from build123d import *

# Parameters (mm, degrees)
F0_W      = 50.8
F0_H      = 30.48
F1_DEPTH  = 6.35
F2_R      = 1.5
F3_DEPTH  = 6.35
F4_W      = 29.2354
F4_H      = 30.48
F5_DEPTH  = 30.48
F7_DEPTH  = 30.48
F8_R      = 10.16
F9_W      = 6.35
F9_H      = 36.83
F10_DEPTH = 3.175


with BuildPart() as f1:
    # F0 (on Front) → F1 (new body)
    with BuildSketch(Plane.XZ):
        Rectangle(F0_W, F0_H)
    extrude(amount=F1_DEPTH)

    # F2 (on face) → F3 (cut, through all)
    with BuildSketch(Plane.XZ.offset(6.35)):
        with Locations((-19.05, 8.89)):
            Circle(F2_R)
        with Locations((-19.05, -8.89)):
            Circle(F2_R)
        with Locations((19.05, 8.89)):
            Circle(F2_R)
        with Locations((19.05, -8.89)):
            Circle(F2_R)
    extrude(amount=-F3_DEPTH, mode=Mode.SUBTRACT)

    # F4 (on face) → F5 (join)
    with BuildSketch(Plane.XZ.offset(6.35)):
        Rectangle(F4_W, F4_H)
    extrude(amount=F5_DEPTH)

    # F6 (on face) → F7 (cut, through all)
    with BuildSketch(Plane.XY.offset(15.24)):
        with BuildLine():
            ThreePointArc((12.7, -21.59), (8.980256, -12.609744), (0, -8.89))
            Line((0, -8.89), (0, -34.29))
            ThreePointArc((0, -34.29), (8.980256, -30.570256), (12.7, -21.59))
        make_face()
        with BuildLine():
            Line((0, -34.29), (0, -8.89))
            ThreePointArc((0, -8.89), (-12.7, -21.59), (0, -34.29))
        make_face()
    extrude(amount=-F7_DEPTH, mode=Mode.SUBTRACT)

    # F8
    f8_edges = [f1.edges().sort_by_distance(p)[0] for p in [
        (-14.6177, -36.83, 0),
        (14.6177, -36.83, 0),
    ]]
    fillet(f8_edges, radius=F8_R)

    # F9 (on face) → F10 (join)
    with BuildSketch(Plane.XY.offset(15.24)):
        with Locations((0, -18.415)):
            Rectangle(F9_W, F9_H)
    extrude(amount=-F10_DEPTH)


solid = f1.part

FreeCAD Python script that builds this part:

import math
import FreeCAD as App
import Part
import Sketcher

V = App.Vector
Q = App.Units.Quantity


def edges_at(feature, points):
    """Names of the edges that pass closest to the given points."""
    edges = feature.Shape.Edges
    near = lambda p: min(range(len(edges)), key=lambda i: edges[i].distToShape(Part.Vertex(*p))[0])
    return sorted({f"Edge{near(p) + 1}" for p in points})

doc = App.newDocument("Part")
body = doc.addObject("PartDesign::Body", "Body")

# Sketch on XZ plane
sketch1 = doc.addObject("Sketcher::SketchObject", "Sketch")
body.addObject(sketch1)
sketch1.AttachmentSupport = (doc.XZ_Plane, [""])
sketch1.MapMode = "FlatFace"
sketch1.addGeometry([
    Part.LineSegment(V(-25.4, 15.24, 0), V(-25.4, -15.24, 0)),
    Part.LineSegment(V(-25.4, -15.24, 0), V(25.4, -15.24, 0)),
    Part.LineSegment(V(25.4, -15.24, 0), V(25.4, 15.24, 0)),
    Part.LineSegment(V(25.4, 15.24, 0), V(-25.4, 15.24, 0)),
], False)
sketch1.addConstraint([
    Sketcher.Constraint("Coincident", 0, 2, 1, 1),
    Sketcher.Constraint("Coincident", 1, 2, 2, 1),
    Sketcher.Constraint("Coincident", 2, 2, 3, 1),
    Sketcher.Constraint("Coincident", 3, 2, 0, 1),
    Sketcher.Constraint("Vertical", 0),
    Sketcher.Constraint("Horizontal", 1),
    Sketcher.Constraint("Vertical", 2),
    Sketcher.Constraint("Horizontal", 3),
    Sketcher.Constraint("Symmetric", 0, 2, 2, 2, -1, 1),
    Sketcher.Constraint("DistanceX", 1, 1, 1, 2, Q("2 in")),
    Sketcher.Constraint("DistanceY", 0, 2, 0, 1, Q("1.2 in")),
])
pad1 = doc.addObject("PartDesign::Pad", "Pad")
body.addObject(pad1)
pad1.Profile = sketch1
pad1.Length = Q("0.25 in")

# Sketch on XZ plane
sketch2 = doc.addObject("Sketcher::SketchObject", "Sketch001")
body.addObject(sketch2)
sketch2.AttachmentSupport = (doc.XZ_Plane, [""])
sketch2.MapMode = "FlatFace"
sketch2.AttachmentOffset = App.Placement(V(0, 0, 0.25 * 25.4), App.Rotation())
sketch2.addGeometry([
    Part.Circle(V(-19.05, 8.89, 0), V(0, 0, 1), 1.5),
    Part.Circle(V(-19.05, -8.89, 0), V(0, 0, 1), 1.5),
    Part.Circle(V(19.05, 8.89, 0), V(0, 0, 1), 1.5),
    Part.Circle(V(19.05, -8.89, 0), V(0, 0, 1), 1.5),
], False)
sketch2.addConstraint([
    Sketcher.Constraint("Equal", 0, 1),
    Sketcher.Constraint("Equal", 1, 2),
    Sketcher.Constraint("Equal", 2, 3),
    Sketcher.Constraint("Symmetric", 1, 3, 2, 3, -1, 1),
    Sketcher.Constraint("Symmetric", 0, 3, 3, 3, -1, 1),
    Sketcher.Constraint("Symmetric", 0, 3, 2, 3, -2),
    Sketcher.Constraint("DistanceY", 1, 3, 0, 3, Q("0.7 in")),
    Sketcher.Constraint("DistanceX", 0, 3, 2, 3, Q("1.5 in")),
    Sketcher.Constraint("Diameter", 0, 3.0),
])
pocket1 = doc.addObject("PartDesign::Pocket", "Pocket")
body.addObject(pocket1)
pocket1.Profile = sketch2
pocket1.Type = "ThroughAll"

# Sketch on XZ plane
sketch3 = doc.addObject("Sketcher::SketchObject", "Sketch002")
body.addObject(sketch3)
sketch3.AttachmentSupport = (doc.XZ_Plane, [""])
sketch3.MapMode = "FlatFace"
sketch3.AttachmentOffset = App.Placement(V(0, 0, 0.25 * 25.4), App.Rotation())
sketch3.addGeometry([
    Part.LineSegment(V(-14.6177, 15.24, 0), V(-14.6177, -15.24, 0)),
    Part.LineSegment(V(-14.6177, -15.24, 0), V(14.6177, -15.24, 0)),
    Part.LineSegment(V(14.6177, -15.24, 0), V(14.6177, 15.24, 0)),
    Part.LineSegment(V(14.6177, 15.24, 0), V(-14.6177, 15.24, 0)),
], False)
sketch3.addConstraint([
    Sketcher.Constraint("Coincident", 0, 2, 1, 1),
    Sketcher.Constraint("Coincident", 1, 2, 2, 1),
    Sketcher.Constraint("Coincident", 2, 2, 3, 1),
    Sketcher.Constraint("Coincident", 3, 2, 0, 1),
    Sketcher.Constraint("Vertical", 0),
    Sketcher.Constraint("Horizontal", 1),
    Sketcher.Constraint("Vertical", 2),
    Sketcher.Constraint("Horizontal", 3),
    Sketcher.Constraint("Symmetric", 0, 2, 2, 2, -1, 1),
    Sketcher.Constraint("DistanceY", 0, 2, 0, 1, Q("1.2 in")),
    Sketcher.Constraint("DistanceX", 1, 1, 1, 2, Q("1.151 in")),
])
pad2 = doc.addObject("PartDesign::Pad", "Pad001")
body.addObject(pad2)
pad2.Profile = sketch3
pad2.Length = Q("1.2 in")

# Sketch on XY plane
sketch4 = doc.addObject("Sketcher::SketchObject", "Sketch003")
body.addObject(sketch4)
sketch4.AttachmentSupport = (doc.XY_Plane, [""])
sketch4.MapMode = "FlatFace"
sketch4.AttachmentOffset = App.Placement(V(0, 0, 0.6 * 25.4), App.Rotation())
sketch4.addGeometry([
    Part.ArcOfCircle(Part.Circle(V(0, -21.59, 0), V(0, 0, 1), 12.7), math.radians(0.000002), math.radians(89.999998)),
    Part.ArcOfCircle(Part.Circle(V(0, -21.59, 0), V(0, 0, 1), 12.7), math.radians(90), math.radians(270)),
    Part.ArcOfCircle(Part.Circle(V(0, -21.59, 0), V(0, 0, 1), 12.7), math.radians(-89.999998), math.radians(-0.000002)),
], False)
sketch4.addConstraint([
    Sketcher.Constraint("Tangent", 0, 2, 1, 1),
    Sketcher.Constraint("Tangent", 1, 2, 2, 1),
    Sketcher.Constraint("Tangent", 2, 2, 0, 1),
    Sketcher.Constraint("PointOnObject", 0, 3, -2),
    Sketcher.Constraint("PointOnObject", 0, 2, -2),
    Sketcher.Constraint("PointOnObject", 1, 2, -2),
    Sketcher.Constraint("Horizontal", 1, 3, 2, 2),
    Sketcher.Constraint("Radius", 0, Q("0.5 in")),
    Sketcher.Constraint("DistanceY", 0, 3, -1, 1, Q("0.85 in")),
])
pocket2 = doc.addObject("PartDesign::Pocket", "Pocket001")
body.addObject(pocket2)
pocket2.Profile = sketch4
pocket2.Type = "ThroughAll"
doc.recompute()

fillet = doc.addObject("PartDesign::Fillet", "Fillet")
body.addObject(fillet)
fillet.Base = (pocket2, edges_at(pocket2, [(-14.618, -36.83, 0), (14.618, -36.83, 0)]))
fillet.Radius = Q("0.4 in")

# Sketch on XY plane
sketch5 = doc.addObject("Sketcher::SketchObject", "Sketch004")
body.addObject(sketch5)
sketch5.AttachmentSupport = (doc.XY_Plane, [""])
sketch5.MapMode = "FlatFace"
sketch5.AttachmentOffset = App.Placement(V(0, 0, 0.6 * 25.4), App.Rotation())
sketch5.addGeometry([
    Part.LineSegment(V(-3.175, 0, 0), V(-3.175, -36.83, 0)),
    Part.LineSegment(V(-3.175, -36.83, 0), V(3.175, -36.83, 0)),
    Part.LineSegment(V(3.175, -36.83, 0), V(3.175, 0, 0)),
    Part.LineSegment(V(3.175, 0, 0), V(-3.175, 0, 0)),
], False)
sketch5.addConstraint([
    Sketcher.Constraint("Coincident", 0, 2, 1, 1),
    Sketcher.Constraint("Coincident", 1, 2, 2, 1),
    Sketcher.Constraint("Coincident", 2, 2, 3, 1),
    Sketcher.Constraint("Coincident", 3, 2, 0, 1),
    Sketcher.Constraint("Vertical", 0),
    Sketcher.Constraint("Horizontal", 1),
    Sketcher.Constraint("Vertical", 2),
    Sketcher.Constraint("Horizontal", 3),
    Sketcher.Constraint("Symmetric", 2, 2, 3, 2, -1, 1),
    Sketcher.Constraint("DistanceX", 1, 1, 1, 2, Q("0.25 in")),
    Sketcher.Constraint("DistanceY", 0, 2, 0, 1, Q("1.45 in")),
])
pad3 = doc.addObject("PartDesign::Pad", "Pad002")
body.addObject(pad3)
pad3.Profile = sketch5
pad3.Length = Q("0.125 in")
pad3.Reversed = True

doc.recompute()
